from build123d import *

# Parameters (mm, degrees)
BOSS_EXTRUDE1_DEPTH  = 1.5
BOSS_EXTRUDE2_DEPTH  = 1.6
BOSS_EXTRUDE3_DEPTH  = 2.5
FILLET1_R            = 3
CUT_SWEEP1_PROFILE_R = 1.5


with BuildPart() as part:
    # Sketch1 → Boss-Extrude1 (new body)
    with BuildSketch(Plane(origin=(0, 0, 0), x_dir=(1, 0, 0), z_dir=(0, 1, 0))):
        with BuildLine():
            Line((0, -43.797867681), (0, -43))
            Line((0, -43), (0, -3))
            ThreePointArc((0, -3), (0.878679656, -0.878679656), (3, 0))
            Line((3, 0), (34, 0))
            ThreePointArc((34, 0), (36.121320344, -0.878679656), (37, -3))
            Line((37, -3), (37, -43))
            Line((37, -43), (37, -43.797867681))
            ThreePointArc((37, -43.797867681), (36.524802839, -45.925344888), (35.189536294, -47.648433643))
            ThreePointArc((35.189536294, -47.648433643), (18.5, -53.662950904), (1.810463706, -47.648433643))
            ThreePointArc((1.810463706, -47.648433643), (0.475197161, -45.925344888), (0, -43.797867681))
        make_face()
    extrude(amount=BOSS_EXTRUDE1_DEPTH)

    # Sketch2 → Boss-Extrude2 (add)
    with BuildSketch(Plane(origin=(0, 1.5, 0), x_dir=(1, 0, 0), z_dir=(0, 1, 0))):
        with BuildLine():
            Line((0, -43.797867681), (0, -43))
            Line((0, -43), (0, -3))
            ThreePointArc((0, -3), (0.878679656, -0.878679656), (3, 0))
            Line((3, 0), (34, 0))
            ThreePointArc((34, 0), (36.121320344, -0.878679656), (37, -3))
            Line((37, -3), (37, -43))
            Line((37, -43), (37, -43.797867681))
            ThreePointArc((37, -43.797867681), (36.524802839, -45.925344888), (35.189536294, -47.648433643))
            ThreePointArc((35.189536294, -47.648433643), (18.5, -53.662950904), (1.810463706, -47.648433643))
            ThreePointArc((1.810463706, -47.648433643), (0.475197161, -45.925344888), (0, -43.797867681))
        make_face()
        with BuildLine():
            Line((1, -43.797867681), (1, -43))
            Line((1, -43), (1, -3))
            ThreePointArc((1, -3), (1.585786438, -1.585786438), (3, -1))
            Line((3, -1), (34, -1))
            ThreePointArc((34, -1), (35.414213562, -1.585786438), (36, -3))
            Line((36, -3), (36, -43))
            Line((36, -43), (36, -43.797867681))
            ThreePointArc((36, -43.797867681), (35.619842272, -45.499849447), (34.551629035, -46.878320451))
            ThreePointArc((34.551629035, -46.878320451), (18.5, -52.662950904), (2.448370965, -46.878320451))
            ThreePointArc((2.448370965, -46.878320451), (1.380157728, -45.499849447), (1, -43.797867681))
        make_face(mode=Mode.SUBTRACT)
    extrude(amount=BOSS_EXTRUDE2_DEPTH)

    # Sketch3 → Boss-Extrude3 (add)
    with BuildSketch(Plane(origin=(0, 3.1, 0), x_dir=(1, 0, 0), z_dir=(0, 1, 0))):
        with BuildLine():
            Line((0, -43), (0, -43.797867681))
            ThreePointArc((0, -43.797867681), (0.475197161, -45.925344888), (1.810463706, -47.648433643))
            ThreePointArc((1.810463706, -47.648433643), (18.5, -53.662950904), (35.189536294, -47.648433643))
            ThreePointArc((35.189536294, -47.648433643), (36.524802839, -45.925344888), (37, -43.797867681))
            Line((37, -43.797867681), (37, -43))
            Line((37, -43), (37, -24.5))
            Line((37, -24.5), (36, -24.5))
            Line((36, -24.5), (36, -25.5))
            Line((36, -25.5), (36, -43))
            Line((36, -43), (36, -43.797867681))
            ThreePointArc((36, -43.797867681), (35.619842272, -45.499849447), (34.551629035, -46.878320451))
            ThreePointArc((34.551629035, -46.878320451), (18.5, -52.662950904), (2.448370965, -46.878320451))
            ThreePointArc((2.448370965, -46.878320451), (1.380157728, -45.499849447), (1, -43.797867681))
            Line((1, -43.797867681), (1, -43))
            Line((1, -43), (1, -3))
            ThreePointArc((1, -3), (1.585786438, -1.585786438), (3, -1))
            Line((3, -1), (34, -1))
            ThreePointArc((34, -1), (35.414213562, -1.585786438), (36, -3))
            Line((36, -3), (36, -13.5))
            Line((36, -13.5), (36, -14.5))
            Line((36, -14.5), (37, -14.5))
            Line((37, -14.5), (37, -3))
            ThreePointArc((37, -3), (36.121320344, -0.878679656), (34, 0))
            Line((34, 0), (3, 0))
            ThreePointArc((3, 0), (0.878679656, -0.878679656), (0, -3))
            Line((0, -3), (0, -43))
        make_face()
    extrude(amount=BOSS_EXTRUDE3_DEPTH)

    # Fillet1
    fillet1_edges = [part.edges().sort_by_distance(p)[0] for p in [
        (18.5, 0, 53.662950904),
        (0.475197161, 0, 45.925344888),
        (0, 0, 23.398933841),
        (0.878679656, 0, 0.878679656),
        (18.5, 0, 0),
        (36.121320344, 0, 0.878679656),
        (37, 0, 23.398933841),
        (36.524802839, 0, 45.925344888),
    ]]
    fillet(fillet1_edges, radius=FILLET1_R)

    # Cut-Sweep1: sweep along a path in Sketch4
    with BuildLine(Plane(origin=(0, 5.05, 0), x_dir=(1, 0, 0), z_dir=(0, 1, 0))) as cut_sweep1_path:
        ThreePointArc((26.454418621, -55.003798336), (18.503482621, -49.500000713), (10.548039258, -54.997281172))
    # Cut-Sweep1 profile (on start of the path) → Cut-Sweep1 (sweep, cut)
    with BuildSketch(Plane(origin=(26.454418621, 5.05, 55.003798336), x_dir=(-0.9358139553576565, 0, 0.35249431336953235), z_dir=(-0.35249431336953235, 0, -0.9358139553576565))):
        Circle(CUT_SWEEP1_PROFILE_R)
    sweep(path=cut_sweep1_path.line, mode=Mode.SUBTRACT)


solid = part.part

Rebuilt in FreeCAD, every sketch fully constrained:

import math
import FreeCAD as App
import Part
import Sketcher

V = App.Vector
Q = App.Units.Quantity


def edges_at(feature, points):
    """Names of the edges that pass closest to the given points."""
    edges = feature.Shape.Edges
    near = lambda p: min(range(len(edges)), key=lambda i: edges[i].distToShape(Part.Vertex(*p))[0])
    return sorted({f"Edge{near(p) + 1}" for p in points})

doc = App.newDocument("Part")
body = doc.addObject("PartDesign::Body", "Body")

# Sketch on XZ plane
sketch1 = body.newObject("Sketcher::SketchObject", "Sketch")
sketch1.AttachmentSupport = (doc.getObject("XZ_Plane"), [""])
sketch1.MapMode = "FlatFace"
sketch1.addGeometry(Part.LineSegment(V(0, 3, 0), V(0, 43.8, 0)), False)
sketch1.addGeometry(Part.ArcOfCircle(Part.Circle(V(5, 43.8, 0), V(0, 0, 1), 5), math.radians(130), math.radians(180)), False)
sketch1.addGeometry(Part.ArcOfCircle(Part.Circle(V(18.5, 27.5, 0), V(0, 0, 1), 26.2), math.radians(50), math.radians(130)), False)
sketch1.addGeometry(Part.ArcOfCircle(Part.Circle(V(32, 43.8, 0), V(0, 0, 1), 5), math.radians(0), math.radians(50)), False)
sketch1.addGeometry(Part.LineSegment(V(37, 43.8, 0), V(37, 3, 0)), False)
sketch1.addGeometry(Part.ArcOfCircle(Part.Circle(V(34, 3, 0), V(0, 0, 1), 3), math.radians(-90), math.radians(0)), False)
sketch1.addGeometry(Part.LineSegment(V(34, 0, 0), V(3, 0, 0)), False)
sketch1.addGeometry(Part.ArcOfCircle(Part.Circle(V(3, 3, 0), V(0, 0, 1), 3), math.radians(180), math.radians(270)), False)
sketch1.addConstraint(Sketcher.Constraint("Tangent", 0, 2, 1, 2))
sketch1.addConstraint(Sketcher.Constraint("Tangent", 1, 1, 2, 2))
sketch1.addConstraint(Sketcher.Constraint("Tangent", 2, 1, 3, 2))
sketch1.addConstraint(Sketcher.Constraint("Tangent", 3, 1, 4, 1))
sketch1.addConstraint(Sketcher.Constraint("Tangent", 4, 2, 5, 2))
sketch1.addConstraint(Sketcher.Constraint("Tangent", 5, 1, 6, 1))
sketch1.addConstraint(Sketcher.Constraint("Tangent", 6, 2, 7, 2))
sketch1.addConstraint(Sketcher.Constraint("Tangent", 7, 1, 0, 1))
sketch1.addConstraint(Sketcher.Constraint("Vertical", 0))
sketch1.addConstraint(Sketcher.Constraint("Vertical", 4))
sketch1.addConstraint(Sketcher.Constraint("Horizontal", 6))
sketch1.addConstraint(Sketcher.Constraint("Equal", 1, 3))
sketch1.addConstraint(Sketcher.Constraint("Equal", 5, 7))
sketch1.addConstraint(Sketcher.Constraint("PointOnObject", 0, 2, -2))
sketch1.addConstraint(Sketcher.Constraint("PointOnObject", 5, 1, -1))
sketch1.addConstraint(Sketcher.Constraint("Horizontal", 1, 3, 3, 3))
sketch1.addConstraint(Sketcher.Constraint("Radius", 1, Q("5 mm")))
sketch1.addConstraint(Sketcher.Constraint("Radius", 5, Q("3 mm")))
sketch1.addConstraint(Sketcher.Constraint("DistanceX", 6, 2, 6, 1, Q("31 mm")))
sketch1.addConstraint(Sketcher.Constraint("DistanceY", -1, 1, 2, 3, Q("27.5 mm")))
sketch1.addConstraint(Sketcher.Constraint("Radius", 2, Q("26.162951 mm")))
pad1 = body.newObject("PartDesign::Pad", "Pad")
pad1.Profile = sketch1
pad1.Length = 1.5
pad1.Reversed = True

# Sketch on XZ plane
sketch2 = body.newObject("Sketcher::SketchObject", "Sketch001")
sketch2.AttachmentSupport = (doc.getObject("XZ_Plane"), [""])
sketch2.MapMode = "FlatFace"
sketch2.AttachmentOffset = App.Placement(V(0, 0, -1.5), App.Rotation())
sketch2.addGeometry(Part.LineSegment(V(0, 3, 0), V(0, 43.8, 0)), False)
sketch2.addGeometry(Part.ArcOfCircle(Part.Circle(V(5, 43.8, 0), V(0, 0, 1), 5), math.radians(130), math.radians(180)), False)
sketch2.addGeometry(Part.ArcOfCircle(Part.Circle(V(18.5, 27.5, 0), V(0, 0, 1), 26.2), math.radians(50), math.radians(130)), False)
sketch2.addGeometry(Part.ArcOfCircle(Part.Circle(V(32, 43.8, 0), V(0, 0, 1), 5), math.radians(0), math.radians(50)), False)
sketch2.addGeometry(Part.LineSegment(V(37, 43.8, 0), V(37, 3, 0)), False)
sketch2.addGeometry(Part.ArcOfCircle(Part.Circle(V(34, 3, 0), V(0, 0, 1), 3), math.radians(-90), math.radians(0)), False)
sketch2.addGeometry(Part.LineSegment(V(34, 0, 0), V(3, 0, 0)), False)
sketch2.addGeometry(Part.ArcOfCircle(Part.Circle(V(3, 3, 0), V(0, 0, 1), 3), math.radians(180), math.radians(270)), False)
sketch2.addGeometry(Part.LineSegment(V(1, 43.8, 0), V(1, 3, 0)), False)
sketch2.addGeometry(Part.ArcOfCircle(Part.Circle(V(3, 3, 0), V(0, 0, 1), 2), math.radians(-180), math.radians(-90)), False)
sketch2.addGeometry(Part.LineSegment(V(3, 1, 0), V(34, 1, 0)), False)
sketch2.addGeometry(Part.ArcOfCircle(Part.Circle(V(34, 3, 0), V(0, 0, 1), 2), math.radians(-90), math.radians(0)), False)
sketch2.addGeometry(Part.LineSegment(V(36, 3, 0), V(36, 43.8, 0)), False)
sketch2.addGeometry(Part.ArcOfCircle(Part.Circle(V(32, 43.8, 0), V(0, 0, 1), 4), math.radians(0), math.radians(50)), False)
sketch2.addGeometry(Part.ArcOfCircle(Part.Circle(V(18.5, 27.5, 0), V(0, 0, 1), 25.2), math.radians(50), math.radians(130)), False)
sketch2.addGeometry(Part.ArcOfCircle(Part.Circle(V(5, 43.8, 0), V(0, 0, 1), 4), math.radians(130), math.radians(180)), False)
sketch2.addConstraint(Sketcher.Constraint("Tangent", 0, 2, 1, 2))
sketch2.addConstraint(Sketcher.Constraint("Tangent", 1, 1, 2, 2))
sketch2.addConstraint(Sketcher.Constraint("Tangent", 2, 1, 3, 2))
sketch2.addConstraint(Sketcher.Constraint("Tangent", 3, 1, 4, 1))
sketch2.addConstraint(Sketcher.Constraint("Tangent", 4, 2, 5, 2))
sketch2.addConstraint(Sketcher.Constraint("Tangent", 5, 1, 6, 1))
sketch2.addConstraint(Sketcher.Constraint("Tangent", 6, 2, 7, 2))
sketch2.addConstraint(Sketcher.Constraint("Tangent", 7, 1, 0, 1))
sketch2.addConstraint(Sketcher.Constraint("Tangent", 8, 2, 9, 1))
sketch2.addConstraint(Sketcher.Constraint("Tangent", 9, 2, 10, 1))
sketch2.addConstraint(Sketcher.Constraint("Tangent", 10, 2, 11, 1))
sketch2.addConstraint(Sketcher.Constraint("Tangent", 11, 2, 12, 1))
sketch2.addConstraint(Sketcher.Constraint("Tangent", 12, 2, 13, 1))
sketch2.addConstraint(Sketcher.Constraint("Tangent", 13, 2, 14, 1))
sketch2.addConstraint(Sketcher.Constraint("Tangent", 14, 2, 15, 1))
sketch2.addConstraint(Sketcher.Constraint("Tangent", 15, 2, 8, 1))
sketch2.addConstraint(Sketcher.Constraint("Vertical", 0))
sketch2.addConstraint(Sketcher.Constraint("Vertical", 4))
sketch2.addConstraint(Sketcher.Constraint("Horizontal", 6))
sketch2.addConstraint(Sketcher.Constraint("Vertical", 8))
sketch2.addConstraint(Sketcher.Constraint("Horizontal", 10))
sketch2.addConstraint(Sketcher.Constraint("Vertical", 12))
sketch2.addConstraint(Sketcher.Constraint("Coincident", 9, 3, 7, 3))
sketch2.addConstraint(Sketcher.Constraint("Coincident", 11, 3, 5, 3))
sketch2.addConstraint(Sketcher.Constraint("Coincident", 13, 3, 3, 3))
sketch2.addConstraint(Sketcher.Constraint("Coincident", 14, 3, 2, 3))
sketch2.addConstraint(Sketcher.Constraint("Equal", 1, 3))
sketch2.addConstraint(Sketcher.Constraint("Equal", 5, 7))
sketch2.addConstraint(Sketcher.Constraint("Equal", 13, 15))
sketch2.addConstraint(Sketcher.Constraint("PointOnObject", 0, 2, -2))
sketch2.addConstraint(Sketcher.Constraint("PointOnObject", 5, 1, -1))
sketch2.addConstraint(Sketcher.Constraint("Horizontal", 1, 3, 3, 3))
sketch2.addConstraint(Sketcher.Constraint("Radius", 1, Q("5 mm")))
sketch2.addConstraint(Sketcher.Constraint("Radius", 5, Q("3 mm")))
sketch2.addConstraint(Sketcher.Constraint("Radius", 9, Q("2 mm")))
sketch2.addConstraint(Sketcher.Constraint("DistanceX", 6, 2, 6, 1, Q("31 mm")))
sketch2.addConstraint(Sketcher.Constraint("DistanceY", -1, 1, 2, 3, Q("27.5 mm")))
sketch2.addConstraint(Sketcher.Constraint("Radius", 2, Q("26.162951 mm")))
pad2 = body.newObject("PartDesign::Pad", "Pad001")
pad2.Profile = sketch2
pad2.Length = 1.6
pad2.Reversed = True

# Sketch on XZ plane
sketch3 = body.newObject("Sketcher::SketchObject", "Sketch002")
sketch3.AttachmentSupport = (doc.getObject("XZ_Plane"), [""])
sketch3.MapMode = "FlatFace"
sketch3.AttachmentOffset = App.Placement(V(0, 0, -3.1), App.Rotation())
sketch3.addGeometry(Part.ArcOfCircle(Part.Circle(V(5, 43.8, 0), V(0, 0, 1), 5), math.radians(130), math.radians(180)), False)
sketch3.addGeometry(Part.ArcOfCircle(Part.Circle(V(18.5, 27.5, 0), V(0, 0, 1), 26.2), math.radians(50), math.radians(130)), False)
sketch3.addGeometry(Part.ArcOfCircle(Part.Circle(V(32, 43.8, 0), V(0, 0, 1), 5), math.radians(0), math.radians(50)), False)
sketch3.addGeometry(Part.LineSegment(V(37, 43.8, 0), V(37, 24.5, 0)), False)
sketch3.addGeometry(Part.LineSegment(V(37, 24.5, 0), V(36, 24.5, 0)), False)
sketch3.addGeometry(Part.LineSegment(V(36, 24.5, 0), V(36, 43.8, 0)), False)
sketch3.addGeometry(Part.ArcOfCircle(Part.Circle(V(32, 43.8, 0), V(0, 0, 1), 4), math.radians(0), math.radians(50)), False)
sketch3.addGeometry(Part.ArcOfCircle(Part.Circle(V(18.5, 27.5, 0), V(0, 0, 1), 25.2), math.radians(50), math.radians(130)), False)
sketch3.addGeometry(Part.ArcOfCircle(Part.Circle(V(5, 43.8, 0), V(0, 0, 1), 4), math.radians(130), math.radians(180)), False)
sketch3.addGeometry(Part.LineSegment(V(1, 43.8, 0), V(1, 3, 0)), False)
sketch3.addGeometry(Part.ArcOfCircle(Part.Circle(V(3, 3, 0), V(0, 0, 1), 2), math.radians(-180), math.radians(-90)), False)
sketch3.addGeometry(Part.LineSegment(V(3, 1, 0), V(34, 1, 0)), False)
sketch3.addGeometry(Part.ArcOfCircle(Part.Circle(V(34, 3, 0), V(0, 0, 1), 2), math.radians(-90), math.radians(0)), False)
sketch3.addGeometry(Part.LineSegment(V(36, 3, 0), V(36, 14.5, 0)), False)
sketch3.addGeometry(Part.LineSegment(V(36, 14.5, 0), V(37, 14.5, 0)), False)
sketch3.addGeometry(Part.LineSegment(V(37, 14.5, 0), V(37, 3, 0)), False)
sketch3.addGeometry(Part.ArcOfCircle(Part.Circle(V(34, 3, 0), V(0, 0, 1), 3), math.radians(-90), math.radians(0)), False)
sketch3.addGeometry(Part.LineSegment(V(34, 0, 0), V(3, 0, 0)), False)
sketch3.addGeometry(Part.ArcOfCircle(Part.Circle(V(3, 3, 0), V(0, 0, 1), 3), math.radians(180), math.radians(270)), False)
sketch3.addGeometry(Part.LineSegment(V(0, 3, 0), V(0, 43.8, 0)), False)
sketch3.addConstraint(Sketcher.Constraint("Tangent", 0, 1, 1, 2))
sketch3.addConstraint(Sketcher.Constraint("Tangent", 1, 1, 2, 2))
sketch3.addConstraint(Sketcher.Constraint("Tangent", 2, 1, 3, 1))
sketch3.addConstraint(Sketcher.Constraint("Coincident", 3, 2, 4, 1))
sketch3.addConstraint(Sketcher.Constraint("Coincident", 4, 2, 5, 1))
sketch3.addConstraint(Sketcher.Constraint("Tangent", 5, 2, 6, 1))
sketch3.addConstraint(Sketcher.Constraint("Tangent", 6, 2, 7, 1))
sketch3.addConstraint(Sketcher.Constraint("Tangent", 7, 2, 8, 1))
sketch3.addConstraint(Sketcher.Constraint("Tangent", 8, 2, 9, 1))
sketch3.addConstraint(Sketcher.Constraint("Tangent", 9, 2, 10, 1))
sketch3.addConstraint(Sketcher.Constraint("Tangent", 10, 2, 11, 1))
sketch3.addConstraint(Sketcher.Constraint("Tangent", 11, 2, 12, 1))
sketch3.addConstraint(Sketcher.Constraint("Tangent", 12, 2, 13, 1))
sketch3.addConstraint(Sketcher.Constraint("Coincident", 13, 2, 14, 1))
sketch3.addConstraint(Sketcher.Constraint("Coincident", 14, 2, 15, 1))
sketch3.addConstraint(Sketcher.Constraint("Tangent", 15, 2, 16, 2))
sketch3.addConstraint(Sketcher.Constraint("Tangent", 16, 1, 17, 1))
sketch3.addConstraint(Sketcher.Constraint("Tangent", 17, 2, 18, 2))
sketch3.addConstraint(Sketcher.Constraint("Tangent", 18, 1, 19, 1))
sketch3.addConstraint(Sketcher.Constraint("Tangent", 19, 2, 0, 2))
sketch3.addConstraint(Sketcher.Constraint("Vertical", 3))
sketch3.addConstraint(Sketcher.Constraint("Horizontal", 4))
sketch3.addConstraint(Sketcher.Constraint("Vertical", 5))
sketch3.addConstraint(Sketcher.Constraint("Vertical", 9))
sketch3.addConstraint(Sketcher.Constraint("Horizontal", 11))
sketch3.addConstraint(Sketcher.Constraint("Vertical", 13))
sketch3.addConstraint(Sketcher.Constraint("Horizontal", 14))
sketch3.addConstraint(Sketcher.Constraint("Vertical", 15))
sketch3.addConstraint(Sketcher.Constraint("Horizontal", 17))
sketch3.addConstraint(Sketcher.Constraint("Vertical", 19))
sketch3.addConstraint(Sketcher.Constraint("Coincident", 6, 3, 2, 3))
sketch3.addConstraint(Sketcher.Constraint("Coincident", 7, 3, 1, 3))
sketch3.addConstraint(Sketcher.Constraint("Coincident", 8, 3, 0, 3))
sketch3.addConstraint(Sketcher.Constraint("Coincident", 16, 3, 12, 3))
sketch3.addConstraint(Sketcher.Constraint("Coincident", 18, 3, 10, 3))
sketch3.addConstraint(Sketcher.Constraint("Equal", 0, 2))
sketch3.addConstraint(Sketcher.Constraint("Equal", 10, 12))
sketch3.addConstraint(Sketcher.Constraint("PointOnObject", 16, 1, -1))
sketch3.addConstraint(Sketcher.Constraint("PointOnObject", 18, 1, -2))
sketch3.addConstraint(Sketcher.Constraint("Horizontal", 0, 3, 2, 3))
sketch3.addConstraint(Sketcher.Constraint("Vertical", 5, 2, 12, 2))
sketch3.addConstraint(Sketcher.Constraint("Radius", 0, Q("5 mm")))
sketch3.addConstraint(Sketcher.Constraint("Radius", 6, Q("4 mm")))
sketch3.addConstraint(Sketcher.Constraint("Radius", 10, Q("2 mm")))
sketch3.addConstraint(Sketcher.Constraint("DistanceX", 11, 1, 11, 2, Q("31 mm")))
sketch3.addConstraint(Sketcher.Constraint("DistanceY", 13, 1, 13, 2, Q("11.5 mm")))
sketch3.addConstraint(Sketcher.Constraint("DistanceY", 3, 2, 1, 3, Q("3 mm")))
sketch3.addConstraint(Sketcher.Constraint("DistanceY", 13, 2, 4, 2, Q("10 mm")))
sketch3.addConstraint(Sketcher.Constraint("Radius", 1, Q("26.162951 mm")))
pad3 = body.newObject("PartDesign::Pad", "Pad002")
pad3.Profile = sketch3
pad3.Length = 2.5
pad3.Reversed = True
doc.recompute()

fillet = body.newObject("PartDesign::Fillet", "Fillet")
fillet.Base = (pad3, edges_at(pad3, [
    (18.5, 0, 53.663),
    (0.475, 0, 45.925),
    (0, 0, 23.399),
    (0.879, 0, 0.879),
    (18.5, 0, 0),
    (36.121, 0, 0.879),
    (37, 0, 23.399),
    (36.525, 0, 45.925),
]))
fillet.Radius = 3

# Sketch on an angled plane
sketch4 = body.newObject("Sketcher::SketchObject", "Sketch003")
sketch4.Placement = App.Placement(V(26.454419, 5.05, 55.003798), App.Rotation(V(-0.935813955, 0, 0.352494313), V(0, 0.999999999, 0), V(-0.352494313, 0, -0.935813955), "ZXY"))
sketch4.addGeometry(Part.Circle(V(0, 0, 0), V(0, 0, 1), 1.5), False)
sketch4.addConstraint(Sketcher.Constraint("Coincident", 0, 3, -1, 1))
sketch4.addConstraint(Sketcher.Constraint("Diameter", 0, Q("3 mm")))

# Sketch on XZ plane
sketch5 = body.newObject("Sketcher::SketchObject", "Sketch004")
sketch5.AttachmentSupport = (doc.getObject("XZ_Plane"), [""])
sketch5.MapMode = "FlatFace"
sketch5.AttachmentOffset = App.Placement(V(0, 0, -5.05), App.Rotation())
sketch5.addGeometry(Part.ArcOfCircle(Part.Circle(V(18, 58, 0), V(0, 0, 1), 8), math.radians(-159), math.radians(-21)), False)
sketch5.addConstraint(Sketcher.Constraint("Radius", 0, Q("8.5 mm")))
sketch5.addConstraint(Sketcher.Constraint("DistanceY", -1, 1, 0, 3, Q("58 mm")))
sketch5.addConstraint(Sketcher.Constraint("DistanceX", -1, 1, 0, 3, Q("18.5 mm")))
sketch5.addConstraint(Sketcher.Constraint("DistanceY", -1, 1, 0, 2, Q("55.003798 mm")))
sketch5.addConstraint(Sketcher.Constraint("DistanceX", -1, 1, 0, 1, Q("10.548039 mm")))
doc.recompute()

subtractivepipe = body.newObject("PartDesign::SubtractivePipe", "SubtractivePipe")
subtractivepipe.Profile = sketch4
subtractivepipe.Spine = (sketch5, ["Edge1"])

doc.recompute()
